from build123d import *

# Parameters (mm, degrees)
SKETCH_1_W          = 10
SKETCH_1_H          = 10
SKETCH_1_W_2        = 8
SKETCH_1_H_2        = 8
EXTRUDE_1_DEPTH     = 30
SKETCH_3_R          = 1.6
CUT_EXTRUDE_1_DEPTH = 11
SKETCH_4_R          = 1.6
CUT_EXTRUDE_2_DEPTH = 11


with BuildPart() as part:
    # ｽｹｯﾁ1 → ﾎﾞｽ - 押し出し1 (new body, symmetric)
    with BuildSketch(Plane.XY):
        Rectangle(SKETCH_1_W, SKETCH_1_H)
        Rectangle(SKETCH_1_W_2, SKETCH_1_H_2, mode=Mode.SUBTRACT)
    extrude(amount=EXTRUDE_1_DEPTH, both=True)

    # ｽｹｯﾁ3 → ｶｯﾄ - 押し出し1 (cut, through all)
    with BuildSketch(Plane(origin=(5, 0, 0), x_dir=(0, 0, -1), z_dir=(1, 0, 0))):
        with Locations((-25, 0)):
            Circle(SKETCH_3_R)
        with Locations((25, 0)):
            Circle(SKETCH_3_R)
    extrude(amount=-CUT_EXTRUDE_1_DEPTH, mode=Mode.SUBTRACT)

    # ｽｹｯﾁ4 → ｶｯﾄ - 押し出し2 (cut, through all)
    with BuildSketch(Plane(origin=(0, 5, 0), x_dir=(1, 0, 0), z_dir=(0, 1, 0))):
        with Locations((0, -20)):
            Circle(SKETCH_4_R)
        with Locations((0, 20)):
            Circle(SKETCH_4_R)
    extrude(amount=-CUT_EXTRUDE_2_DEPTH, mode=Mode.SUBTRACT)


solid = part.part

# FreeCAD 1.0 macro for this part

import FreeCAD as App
import Part
import Sketcher

V = App.Vector

doc = App.newDocument("Part")
body = doc.addObject("PartDesign::Body", "Body")

# Sketch on XY plane
sketch1 = body.newObject("Sketcher::SketchObject", "Sketch")
sketch1.AttachmentSupport = (doc.getObject("XY_Plane"), [""])
sketch1.MapMode = "FlatFace"
sketch1.addGeometry([
    Part.LineSegment(V(-5, 5, 0), V(-5, -5, 0)),  # 0
    Part.LineSegment(V(-5, -5, 0), V(5, -5, 0)),  # 1
    Part.LineSegment(V(5, -5, 0), V(5, 5, 0)),  # 2
    Part.LineSegment(V(5, 5, 0), V(-5, 5, 0)),  # 3
    Part.LineSegment(V(4, -4, 0), V(-4, -4, 0)),  # 4
    Part.LineSegment(V(-4, -4, 0), V(-4, 4, 0)),  # 5
    Part.LineSegment(V(-4, 4, 0), V(4, 4, 0)),  # 6
    Part.LineSegment(V(4, 4, 0), V(4, -4, 0)),  # 7
], False)
sketch1.addConstraint([
    Sketcher.Constraint("Coincident", 0, 2, 1, 1),
    Sketcher.Constraint("Coincident", 1, 2, 2, 1),
    Sketcher.Constraint("Coincident", 2, 2, 3, 1),
    Sketcher.Constraint("Coincident", 3, 2, 0, 1),
    Sketcher.Constraint("Coincident", 4, 2, 5, 1),
    Sketcher.Constraint("Coincident", 5, 2, 6, 1),
    Sketcher.Constraint("Coincident", 6, 2, 7, 1),
    Sketcher.Constraint("Coincident", 7, 2, 4, 1),
    Sketcher.Constraint("Vertical", 0),
    Sketcher.Constraint("Horizontal", 1),
    Sketcher.Constraint("Vertical", 2),
    Sketcher.Constraint("Horizontal", 3),
    Sketcher.Constraint("Horizontal", 4),
    Sketcher.Constraint("Vertical", 5),
    Sketcher.Constraint("Horizontal", 6),
    Sketcher.Constraint("Vertical", 7),
    Sketcher.Constraint("Symmetric", 0, 2, 2, 2, -1, 1),
    Sketcher.Constraint("Symmetric", 4, 2, 6, 2, -1, 1),
    Sketcher.Constraint("Equal", 3, 0),
    Sketcher.Constraint("Equal", 6, 5),
    Sketcher.Constraint("DistanceX", 1, 1, 1, 2, 10.0),
    Sketcher.Constraint("DistanceX", 4, 2, 4, 1, 8.0),
])
pad1 = body.newObject("PartDesign::Pad", "Pad")
pad1.Profile = sketch1
pad1.Length = 60
pad1.Midplane = True

# Sketch on YZ plane
sketch2 = body.newObject("Sketcher::SketchObject", "Sketch001")
sketch2.AttachmentSupport = (doc.getObject("YZ_Plane"), [""])
sketch2.MapMode = "FlatFace"
sketch2.AttachmentOffset = App.Placement(V(0, 0, 5), App.Rotation())
sketch2.addGeometry([
    Part.Circle(V(0, 25, 0), V(0, 0, 1), 1.6),
    Part.Circle(V(0, -25, 0), V(0, 0, 1), 1.6),
], False)
sketch2.addConstraint([
    Sketcher.Constraint("Equal", 0, 1),
    Sketcher.Constraint("Symmetric", 0, 3, 1, 3, -1, 1),
    Sketcher.Constraint("PointOnObject", 0, 3, -2),
    Sketcher.Constraint("Diameter", 0, 3.2),
    Sketcher.Constraint("DistanceY", -1, 1, 0, 3, 25.0),
])
pocket1 = body.newObject("PartDesign::Pocket", "Pocket")
pocket1.Profile = sketch2
pocket1.Type = "ThroughAll"

# Sketch on XZ plane
sketch3 = body.newObject("Sketcher::SketchObject", "Sketch002")
sketch3.AttachmentSupport = (doc.getObject("XZ_Plane"), [""])
sketch3.MapMode = "FlatFace"
sketch3.AttachmentOffset = App.Placement(V(0, 0, -5), App.Rotation())
sketch3.addGeometry([
    Part.Circle(V(0, 20, 0), V(0, 0, 1), 1.6),
    Part.Circle(V(0, -20, 0), V(0, 0, 1), 1.6),
], False)
sketch3.addConstraint([
    Sketcher.Constraint("Equal", 0, 1),
    Sketcher.Constraint("Symmetric", 0, 3, 1, 3, -1, 1),
    Sketcher.Constraint("PointOnObject", 0, 3, -2),
    Sketcher.Constraint("Diameter", 0, 3.2),
    Sketcher.Constraint("DistanceY", -1, 1, 0, 3, 20.0),
])
pocket2 = body.newObject("PartDesign::Pocket", "Pocket001")
pocket2.Profile = sketch3
pocket2.Type = "ThroughAll"
pocket2.Reversed = True

doc.recompute()
